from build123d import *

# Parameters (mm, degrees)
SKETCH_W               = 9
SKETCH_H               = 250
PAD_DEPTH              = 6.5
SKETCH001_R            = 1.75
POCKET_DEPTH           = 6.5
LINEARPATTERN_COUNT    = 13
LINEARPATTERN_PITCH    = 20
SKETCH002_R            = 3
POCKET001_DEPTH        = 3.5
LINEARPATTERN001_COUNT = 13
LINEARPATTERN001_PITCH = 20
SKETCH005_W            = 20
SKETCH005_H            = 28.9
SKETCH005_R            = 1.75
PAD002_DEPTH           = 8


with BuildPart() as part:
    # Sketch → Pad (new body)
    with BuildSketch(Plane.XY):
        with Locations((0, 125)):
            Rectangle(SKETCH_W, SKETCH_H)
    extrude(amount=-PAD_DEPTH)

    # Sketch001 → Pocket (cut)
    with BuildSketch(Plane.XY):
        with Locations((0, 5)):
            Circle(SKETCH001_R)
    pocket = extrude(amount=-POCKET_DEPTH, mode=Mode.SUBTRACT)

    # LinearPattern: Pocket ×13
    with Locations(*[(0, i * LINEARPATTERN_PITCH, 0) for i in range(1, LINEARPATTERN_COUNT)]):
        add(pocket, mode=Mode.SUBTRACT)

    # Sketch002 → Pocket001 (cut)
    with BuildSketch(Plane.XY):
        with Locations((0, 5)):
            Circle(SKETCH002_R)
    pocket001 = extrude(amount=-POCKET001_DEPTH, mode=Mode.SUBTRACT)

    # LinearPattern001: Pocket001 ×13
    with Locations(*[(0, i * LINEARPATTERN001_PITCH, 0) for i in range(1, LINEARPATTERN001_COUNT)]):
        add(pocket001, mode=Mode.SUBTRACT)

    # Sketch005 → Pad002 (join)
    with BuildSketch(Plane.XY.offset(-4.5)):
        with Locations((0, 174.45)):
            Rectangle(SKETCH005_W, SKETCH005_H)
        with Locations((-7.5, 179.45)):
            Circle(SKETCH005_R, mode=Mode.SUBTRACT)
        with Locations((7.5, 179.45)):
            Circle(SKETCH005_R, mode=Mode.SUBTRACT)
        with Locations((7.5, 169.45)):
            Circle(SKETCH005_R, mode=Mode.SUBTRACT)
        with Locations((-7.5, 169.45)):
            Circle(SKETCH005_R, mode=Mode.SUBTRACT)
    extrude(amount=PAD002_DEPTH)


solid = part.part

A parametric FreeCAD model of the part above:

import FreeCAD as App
import Part
import Sketcher

V = App.Vector
Q = App.Units.Quantity

doc = App.newDocument("Part")
params = doc.addObject("Spreadsheet::Sheet", "Params")
for row, (alias, value) in enumerate([
    ("sketch1_width", "9 mm"),
    ("sketch1_height", "250 mm"),
    ("pad1_length", "6.5 mm"),
    ("sketch2_diameter", "3.5 mm"),
    ("pocket1_length", "6.5 mm"),
    ("linearpattern_pitch", "20 mm"),
    ("sketch3_diameter", "6 mm"),
    ("pocket2_length", "3.5 mm"),
    ("linearpattern2_pitch", "20 mm"),
    ("sketch4_diameter", "3.5 mm"),
    ("sketch4_width", "20 mm"),
    ("sketch4_height", "28.9 mm"),
    ("pad2_length", "8 mm"),
], start=1):
    params.set(f"A{row}", alias)
    params.set(f"B{row}", "=" + value)
    params.setAlias(f"B{row}", alias)

body = doc.addObject("PartDesign::Body", "Body")

sketch1 = body.newObject("Sketcher::SketchObject", "Sketch")
sketch1.AttachmentSupport = (doc.getObject("XY_Plane"), [""])
sketch1.MapMode = "FlatFace"
sketch1.addGeometry(Part.LineSegment(V(-4, 250, 0), V(-4, 0, 0)), False)
sketch1.addGeometry(Part.LineSegment(V(-4, 0, 0), V(4, 0, 0)), False)
sketch1.addGeometry(Part.LineSegment(V(4, 0, 0), V(4, 250, 0)), False)
sketch1.addGeometry(Part.LineSegment(V(4, 250, 0), V(-4, 250, 0)), False)
sketch1.addConstraint(Sketcher.Constraint("Coincident", 0, 2, 1, 1))
sketch1.addConstraint(Sketcher.Constraint("Coincident", 1, 2, 2, 1))
sketch1.addConstraint(Sketcher.Constraint("Coincident", 2, 2, 3, 1))
sketch1.addConstraint(Sketcher.Constraint("Coincident", 3, 2, 0, 1))
sketch1.addConstraint(Sketcher.Constraint("Vertical", 0))
sketch1.addConstraint(Sketcher.Constraint("Horizontal", 1))
sketch1.addConstraint(Sketcher.Constraint("Vertical", 2))
sketch1.addConstraint(Sketcher.Constraint("Horizontal", 3))
sketch1.addConstraint(Sketcher.Constraint("Symmetric", 0, 2, 1, 2, -1, 1))
sketch1.addConstraint(Sketcher.Constraint("DistanceX", 1, 1, 1, 2, Q("9 mm")))
sketch1.addConstraint(Sketcher.Constraint("DistanceY", 0, 2, 0, 1, Q("250 mm")))
sketch1.setExpression("Constraints[9]", "Params.sketch1_width")
sketch1.setExpression("Constraints[10]", "Params.sketch1_height")
pad1 = body.newObject("PartDesign::Pad", "Pad")
pad1.Profile = sketch1
pad1.setExpression("Length", "Params.pad1_length")
pad1.Reversed = True

sketch2 = body.newObject("Sketcher::SketchObject", "Sketch001")
sketch2.AttachmentSupport = (doc.getObject("XY_Plane"), [""])
sketch2.MapMode = "FlatFace"
sketch2.addGeometry(Part.Circle(V(0, 5, 0), V(0, 0, 1), 1.8), False)
sketch2.addConstraint(Sketcher.Constraint("PointOnObject", 0, 3, -2))
sketch2.addConstraint(Sketcher.Constraint("Diameter", 0, Q("3.5 mm")))
sketch2.addConstraint(Sketcher.Constraint("DistanceY", -1, 1, 0, 3, Q("5 mm")))
sketch2.setExpression("Constraints[1]", "Params.sketch2_diameter")
pocket1 = body.newObject("PartDesign::Pocket", "Pocket")
pocket1.Profile = sketch2
pocket1.setExpression("Length", "Params.pocket1_length")
doc.recompute()

linearpattern = body.newObject("PartDesign::LinearPattern", "LinearPattern")
linearpattern.Originals = [pocket1]
linearpattern.Direction = (doc.getObject("Y_Axis"), [""])
linearpattern.Mode = "offset"
linearpattern.setExpression("Offset", "Params.linearpattern_pitch")
linearpattern.Occurrences = 13
body.Tip = linearpattern

sketch3 = body.newObject("Sketcher::SketchObject", "Sketch002")
sketch3.AttachmentSupport = (doc.getObject("XY_Plane"), [""])
sketch3.MapMode = "FlatFace"
sketch3.addGeometry(Part.Circle(V(0, 5, 0), V(0, 0, 1), 3), False)
sketch3.addConstraint(Sketcher.Constraint("PointOnObject", 0, 3, -2))
sketch3.addConstraint(Sketcher.Constraint("Diameter", 0, Q("6 mm")))
sketch3.addConstraint(Sketcher.Constraint("DistanceY", -1, 1, 0, 3, Q("5 mm")))
sketch3.setExpression("Constraints[1]", "Params.sketch3_diameter")
pocket2 = body.newObject("PartDesign::Pocket", "Pocket001")
pocket2.Profile = sketch3
pocket2.setExpression("Length", "Params.pocket2_length")
doc.recompute()

linearpattern2 = body.newObject("PartDesign::LinearPattern", "LinearPattern001")
linearpattern2.Originals = [pocket2]
linearpattern2.Direction = (doc.getObject("Y_Axis"), [""])
linearpattern2.Mode = "offset"
linearpattern2.setExpression("Offset", "Params.linearpattern2_pitch")
linearpattern2.Occurrences = 13
body.Tip = linearpattern2

sketch4 = body.newObject("Sketcher::SketchObject", "Sketch003")
sketch4.AttachmentSupport = (doc.getObject("XY_Plane"), [""])
sketch4.MapMode = "FlatFace"
sketch4.AttachmentOffset = App.Placement(V(0, 0, -4.5), App.Rotation())
sketch4.addGeometry(Part.LineSegment(V(-10, 188.9, 0), V(-10, 160, 0)), False)
sketch4.addGeometry(Part.LineSegment(V(-10, 160, 0), V(10, 160, 0)), False)
sketch4.addGeometry(Part.LineSegment(V(10, 160, 0), V(10, 188.9, 0)), False)
sketch4.addGeometry(Part.LineSegment(V(10, 188.9, 0), V(-10, 188.9, 0)), False)
sketch4.addGeometry(Part.Circle(V(-7.5, 169.4, 0), V(0, 0, 1), 1.8), False)
sketch4.addGeometry(Part.Circle(V(7.5, 169.4, 0), V(0, 0, 1), 1.8), False)
sketch4.addGeometry(Part.Circle(V(-7.5, 179.4, 0), V(0, 0, 1), 1.8), False)
sketch4.addGeometry(Part.Circle(V(7.5, 179.4, 0), V(0, 0, 1), 1.8), False)
sketch4.addConstraint(Sketcher.Constraint("Coincident", 0, 2, 1, 1))
sketch4.addConstraint(Sketcher.Constraint("Coincident", 1, 2, 2, 1))
sketch4.addConstraint(Sketcher.Constraint("Coincident", 2, 2, 3, 1))
sketch4.addConstraint(Sketcher.Constraint("Coincident", 3, 2, 0, 1))
sketch4.addConstraint(Sketcher.Constraint("Vertical", 0))
sketch4.addConstraint(Sketcher.Constraint("Horizontal", 1))
sketch4.addConstraint(Sketcher.Constraint("Vertical", 2))
sketch4.addConstraint(Sketcher.Constraint("Horizontal", 3))
sketch4.addConstraint(Sketcher.Constraint("Equal", 4, 5))
sketch4.addConstraint(Sketcher.Constraint("Equal", 5, 6))
sketch4.addConstraint(Sketcher.Constraint("Equal", 6, 7))
sketch4.addConstraint(Sketcher.Constraint("Symmetric", 4, 3, 5, 3, -2))
sketch4.addConstraint(Sketcher.Constraint("Symmetric", 6, 3, 7, 3, -2))
sketch4.addConstraint(Sketcher.Constraint("Vertical", 4, 3, 6, 3))
sketch4.addConstraint(Sketcher.Constraint("Diameter", 4, Q("3.5 mm")))
sketch4.addConstraint(Sketcher.Constraint("DistanceX", 1, 1, 1, 2, Q("20 mm")))
sketch4.addConstraint(Sketcher.Constraint("DistanceY", 0, 2, 0, 1, Q("28.9 mm")))
sketch4.addConstraint(Sketcher.Constraint("DistanceX", 0, 2, -1, 1, Q("10 mm")))
sketch4.addConstraint(Sketcher.Constraint("DistanceY", -1, 1, 0, 2, Q("160 mm")))
sketch4.addConstraint(Sketcher.Constraint("DistanceX", 4, 3, 5, 3, Q("15 mm")))
sketch4.addConstraint(Sketcher.Constraint("DistanceY", 4, 3, 6, 3, Q("10 mm")))
sketch4.addConstraint(Sketcher.Constraint("DistanceY", -1, 1, 4, 3, Q("169.45 mm")))
sketch4.setExpression("Constraints[14]", "Params.sketch4_diameter")
sketch4.setExpression("Constraints[15]", "Params.sketch4_width")
sketch4.setExpression("Constraints[16]", "Params.sketch4_height")
pad2 = body.newObject("PartDesign::Pad", "Pad001")
pad2.Profile = sketch4
pad2.setExpression("Length", "Params.pad2_length")

doc.recompute()
